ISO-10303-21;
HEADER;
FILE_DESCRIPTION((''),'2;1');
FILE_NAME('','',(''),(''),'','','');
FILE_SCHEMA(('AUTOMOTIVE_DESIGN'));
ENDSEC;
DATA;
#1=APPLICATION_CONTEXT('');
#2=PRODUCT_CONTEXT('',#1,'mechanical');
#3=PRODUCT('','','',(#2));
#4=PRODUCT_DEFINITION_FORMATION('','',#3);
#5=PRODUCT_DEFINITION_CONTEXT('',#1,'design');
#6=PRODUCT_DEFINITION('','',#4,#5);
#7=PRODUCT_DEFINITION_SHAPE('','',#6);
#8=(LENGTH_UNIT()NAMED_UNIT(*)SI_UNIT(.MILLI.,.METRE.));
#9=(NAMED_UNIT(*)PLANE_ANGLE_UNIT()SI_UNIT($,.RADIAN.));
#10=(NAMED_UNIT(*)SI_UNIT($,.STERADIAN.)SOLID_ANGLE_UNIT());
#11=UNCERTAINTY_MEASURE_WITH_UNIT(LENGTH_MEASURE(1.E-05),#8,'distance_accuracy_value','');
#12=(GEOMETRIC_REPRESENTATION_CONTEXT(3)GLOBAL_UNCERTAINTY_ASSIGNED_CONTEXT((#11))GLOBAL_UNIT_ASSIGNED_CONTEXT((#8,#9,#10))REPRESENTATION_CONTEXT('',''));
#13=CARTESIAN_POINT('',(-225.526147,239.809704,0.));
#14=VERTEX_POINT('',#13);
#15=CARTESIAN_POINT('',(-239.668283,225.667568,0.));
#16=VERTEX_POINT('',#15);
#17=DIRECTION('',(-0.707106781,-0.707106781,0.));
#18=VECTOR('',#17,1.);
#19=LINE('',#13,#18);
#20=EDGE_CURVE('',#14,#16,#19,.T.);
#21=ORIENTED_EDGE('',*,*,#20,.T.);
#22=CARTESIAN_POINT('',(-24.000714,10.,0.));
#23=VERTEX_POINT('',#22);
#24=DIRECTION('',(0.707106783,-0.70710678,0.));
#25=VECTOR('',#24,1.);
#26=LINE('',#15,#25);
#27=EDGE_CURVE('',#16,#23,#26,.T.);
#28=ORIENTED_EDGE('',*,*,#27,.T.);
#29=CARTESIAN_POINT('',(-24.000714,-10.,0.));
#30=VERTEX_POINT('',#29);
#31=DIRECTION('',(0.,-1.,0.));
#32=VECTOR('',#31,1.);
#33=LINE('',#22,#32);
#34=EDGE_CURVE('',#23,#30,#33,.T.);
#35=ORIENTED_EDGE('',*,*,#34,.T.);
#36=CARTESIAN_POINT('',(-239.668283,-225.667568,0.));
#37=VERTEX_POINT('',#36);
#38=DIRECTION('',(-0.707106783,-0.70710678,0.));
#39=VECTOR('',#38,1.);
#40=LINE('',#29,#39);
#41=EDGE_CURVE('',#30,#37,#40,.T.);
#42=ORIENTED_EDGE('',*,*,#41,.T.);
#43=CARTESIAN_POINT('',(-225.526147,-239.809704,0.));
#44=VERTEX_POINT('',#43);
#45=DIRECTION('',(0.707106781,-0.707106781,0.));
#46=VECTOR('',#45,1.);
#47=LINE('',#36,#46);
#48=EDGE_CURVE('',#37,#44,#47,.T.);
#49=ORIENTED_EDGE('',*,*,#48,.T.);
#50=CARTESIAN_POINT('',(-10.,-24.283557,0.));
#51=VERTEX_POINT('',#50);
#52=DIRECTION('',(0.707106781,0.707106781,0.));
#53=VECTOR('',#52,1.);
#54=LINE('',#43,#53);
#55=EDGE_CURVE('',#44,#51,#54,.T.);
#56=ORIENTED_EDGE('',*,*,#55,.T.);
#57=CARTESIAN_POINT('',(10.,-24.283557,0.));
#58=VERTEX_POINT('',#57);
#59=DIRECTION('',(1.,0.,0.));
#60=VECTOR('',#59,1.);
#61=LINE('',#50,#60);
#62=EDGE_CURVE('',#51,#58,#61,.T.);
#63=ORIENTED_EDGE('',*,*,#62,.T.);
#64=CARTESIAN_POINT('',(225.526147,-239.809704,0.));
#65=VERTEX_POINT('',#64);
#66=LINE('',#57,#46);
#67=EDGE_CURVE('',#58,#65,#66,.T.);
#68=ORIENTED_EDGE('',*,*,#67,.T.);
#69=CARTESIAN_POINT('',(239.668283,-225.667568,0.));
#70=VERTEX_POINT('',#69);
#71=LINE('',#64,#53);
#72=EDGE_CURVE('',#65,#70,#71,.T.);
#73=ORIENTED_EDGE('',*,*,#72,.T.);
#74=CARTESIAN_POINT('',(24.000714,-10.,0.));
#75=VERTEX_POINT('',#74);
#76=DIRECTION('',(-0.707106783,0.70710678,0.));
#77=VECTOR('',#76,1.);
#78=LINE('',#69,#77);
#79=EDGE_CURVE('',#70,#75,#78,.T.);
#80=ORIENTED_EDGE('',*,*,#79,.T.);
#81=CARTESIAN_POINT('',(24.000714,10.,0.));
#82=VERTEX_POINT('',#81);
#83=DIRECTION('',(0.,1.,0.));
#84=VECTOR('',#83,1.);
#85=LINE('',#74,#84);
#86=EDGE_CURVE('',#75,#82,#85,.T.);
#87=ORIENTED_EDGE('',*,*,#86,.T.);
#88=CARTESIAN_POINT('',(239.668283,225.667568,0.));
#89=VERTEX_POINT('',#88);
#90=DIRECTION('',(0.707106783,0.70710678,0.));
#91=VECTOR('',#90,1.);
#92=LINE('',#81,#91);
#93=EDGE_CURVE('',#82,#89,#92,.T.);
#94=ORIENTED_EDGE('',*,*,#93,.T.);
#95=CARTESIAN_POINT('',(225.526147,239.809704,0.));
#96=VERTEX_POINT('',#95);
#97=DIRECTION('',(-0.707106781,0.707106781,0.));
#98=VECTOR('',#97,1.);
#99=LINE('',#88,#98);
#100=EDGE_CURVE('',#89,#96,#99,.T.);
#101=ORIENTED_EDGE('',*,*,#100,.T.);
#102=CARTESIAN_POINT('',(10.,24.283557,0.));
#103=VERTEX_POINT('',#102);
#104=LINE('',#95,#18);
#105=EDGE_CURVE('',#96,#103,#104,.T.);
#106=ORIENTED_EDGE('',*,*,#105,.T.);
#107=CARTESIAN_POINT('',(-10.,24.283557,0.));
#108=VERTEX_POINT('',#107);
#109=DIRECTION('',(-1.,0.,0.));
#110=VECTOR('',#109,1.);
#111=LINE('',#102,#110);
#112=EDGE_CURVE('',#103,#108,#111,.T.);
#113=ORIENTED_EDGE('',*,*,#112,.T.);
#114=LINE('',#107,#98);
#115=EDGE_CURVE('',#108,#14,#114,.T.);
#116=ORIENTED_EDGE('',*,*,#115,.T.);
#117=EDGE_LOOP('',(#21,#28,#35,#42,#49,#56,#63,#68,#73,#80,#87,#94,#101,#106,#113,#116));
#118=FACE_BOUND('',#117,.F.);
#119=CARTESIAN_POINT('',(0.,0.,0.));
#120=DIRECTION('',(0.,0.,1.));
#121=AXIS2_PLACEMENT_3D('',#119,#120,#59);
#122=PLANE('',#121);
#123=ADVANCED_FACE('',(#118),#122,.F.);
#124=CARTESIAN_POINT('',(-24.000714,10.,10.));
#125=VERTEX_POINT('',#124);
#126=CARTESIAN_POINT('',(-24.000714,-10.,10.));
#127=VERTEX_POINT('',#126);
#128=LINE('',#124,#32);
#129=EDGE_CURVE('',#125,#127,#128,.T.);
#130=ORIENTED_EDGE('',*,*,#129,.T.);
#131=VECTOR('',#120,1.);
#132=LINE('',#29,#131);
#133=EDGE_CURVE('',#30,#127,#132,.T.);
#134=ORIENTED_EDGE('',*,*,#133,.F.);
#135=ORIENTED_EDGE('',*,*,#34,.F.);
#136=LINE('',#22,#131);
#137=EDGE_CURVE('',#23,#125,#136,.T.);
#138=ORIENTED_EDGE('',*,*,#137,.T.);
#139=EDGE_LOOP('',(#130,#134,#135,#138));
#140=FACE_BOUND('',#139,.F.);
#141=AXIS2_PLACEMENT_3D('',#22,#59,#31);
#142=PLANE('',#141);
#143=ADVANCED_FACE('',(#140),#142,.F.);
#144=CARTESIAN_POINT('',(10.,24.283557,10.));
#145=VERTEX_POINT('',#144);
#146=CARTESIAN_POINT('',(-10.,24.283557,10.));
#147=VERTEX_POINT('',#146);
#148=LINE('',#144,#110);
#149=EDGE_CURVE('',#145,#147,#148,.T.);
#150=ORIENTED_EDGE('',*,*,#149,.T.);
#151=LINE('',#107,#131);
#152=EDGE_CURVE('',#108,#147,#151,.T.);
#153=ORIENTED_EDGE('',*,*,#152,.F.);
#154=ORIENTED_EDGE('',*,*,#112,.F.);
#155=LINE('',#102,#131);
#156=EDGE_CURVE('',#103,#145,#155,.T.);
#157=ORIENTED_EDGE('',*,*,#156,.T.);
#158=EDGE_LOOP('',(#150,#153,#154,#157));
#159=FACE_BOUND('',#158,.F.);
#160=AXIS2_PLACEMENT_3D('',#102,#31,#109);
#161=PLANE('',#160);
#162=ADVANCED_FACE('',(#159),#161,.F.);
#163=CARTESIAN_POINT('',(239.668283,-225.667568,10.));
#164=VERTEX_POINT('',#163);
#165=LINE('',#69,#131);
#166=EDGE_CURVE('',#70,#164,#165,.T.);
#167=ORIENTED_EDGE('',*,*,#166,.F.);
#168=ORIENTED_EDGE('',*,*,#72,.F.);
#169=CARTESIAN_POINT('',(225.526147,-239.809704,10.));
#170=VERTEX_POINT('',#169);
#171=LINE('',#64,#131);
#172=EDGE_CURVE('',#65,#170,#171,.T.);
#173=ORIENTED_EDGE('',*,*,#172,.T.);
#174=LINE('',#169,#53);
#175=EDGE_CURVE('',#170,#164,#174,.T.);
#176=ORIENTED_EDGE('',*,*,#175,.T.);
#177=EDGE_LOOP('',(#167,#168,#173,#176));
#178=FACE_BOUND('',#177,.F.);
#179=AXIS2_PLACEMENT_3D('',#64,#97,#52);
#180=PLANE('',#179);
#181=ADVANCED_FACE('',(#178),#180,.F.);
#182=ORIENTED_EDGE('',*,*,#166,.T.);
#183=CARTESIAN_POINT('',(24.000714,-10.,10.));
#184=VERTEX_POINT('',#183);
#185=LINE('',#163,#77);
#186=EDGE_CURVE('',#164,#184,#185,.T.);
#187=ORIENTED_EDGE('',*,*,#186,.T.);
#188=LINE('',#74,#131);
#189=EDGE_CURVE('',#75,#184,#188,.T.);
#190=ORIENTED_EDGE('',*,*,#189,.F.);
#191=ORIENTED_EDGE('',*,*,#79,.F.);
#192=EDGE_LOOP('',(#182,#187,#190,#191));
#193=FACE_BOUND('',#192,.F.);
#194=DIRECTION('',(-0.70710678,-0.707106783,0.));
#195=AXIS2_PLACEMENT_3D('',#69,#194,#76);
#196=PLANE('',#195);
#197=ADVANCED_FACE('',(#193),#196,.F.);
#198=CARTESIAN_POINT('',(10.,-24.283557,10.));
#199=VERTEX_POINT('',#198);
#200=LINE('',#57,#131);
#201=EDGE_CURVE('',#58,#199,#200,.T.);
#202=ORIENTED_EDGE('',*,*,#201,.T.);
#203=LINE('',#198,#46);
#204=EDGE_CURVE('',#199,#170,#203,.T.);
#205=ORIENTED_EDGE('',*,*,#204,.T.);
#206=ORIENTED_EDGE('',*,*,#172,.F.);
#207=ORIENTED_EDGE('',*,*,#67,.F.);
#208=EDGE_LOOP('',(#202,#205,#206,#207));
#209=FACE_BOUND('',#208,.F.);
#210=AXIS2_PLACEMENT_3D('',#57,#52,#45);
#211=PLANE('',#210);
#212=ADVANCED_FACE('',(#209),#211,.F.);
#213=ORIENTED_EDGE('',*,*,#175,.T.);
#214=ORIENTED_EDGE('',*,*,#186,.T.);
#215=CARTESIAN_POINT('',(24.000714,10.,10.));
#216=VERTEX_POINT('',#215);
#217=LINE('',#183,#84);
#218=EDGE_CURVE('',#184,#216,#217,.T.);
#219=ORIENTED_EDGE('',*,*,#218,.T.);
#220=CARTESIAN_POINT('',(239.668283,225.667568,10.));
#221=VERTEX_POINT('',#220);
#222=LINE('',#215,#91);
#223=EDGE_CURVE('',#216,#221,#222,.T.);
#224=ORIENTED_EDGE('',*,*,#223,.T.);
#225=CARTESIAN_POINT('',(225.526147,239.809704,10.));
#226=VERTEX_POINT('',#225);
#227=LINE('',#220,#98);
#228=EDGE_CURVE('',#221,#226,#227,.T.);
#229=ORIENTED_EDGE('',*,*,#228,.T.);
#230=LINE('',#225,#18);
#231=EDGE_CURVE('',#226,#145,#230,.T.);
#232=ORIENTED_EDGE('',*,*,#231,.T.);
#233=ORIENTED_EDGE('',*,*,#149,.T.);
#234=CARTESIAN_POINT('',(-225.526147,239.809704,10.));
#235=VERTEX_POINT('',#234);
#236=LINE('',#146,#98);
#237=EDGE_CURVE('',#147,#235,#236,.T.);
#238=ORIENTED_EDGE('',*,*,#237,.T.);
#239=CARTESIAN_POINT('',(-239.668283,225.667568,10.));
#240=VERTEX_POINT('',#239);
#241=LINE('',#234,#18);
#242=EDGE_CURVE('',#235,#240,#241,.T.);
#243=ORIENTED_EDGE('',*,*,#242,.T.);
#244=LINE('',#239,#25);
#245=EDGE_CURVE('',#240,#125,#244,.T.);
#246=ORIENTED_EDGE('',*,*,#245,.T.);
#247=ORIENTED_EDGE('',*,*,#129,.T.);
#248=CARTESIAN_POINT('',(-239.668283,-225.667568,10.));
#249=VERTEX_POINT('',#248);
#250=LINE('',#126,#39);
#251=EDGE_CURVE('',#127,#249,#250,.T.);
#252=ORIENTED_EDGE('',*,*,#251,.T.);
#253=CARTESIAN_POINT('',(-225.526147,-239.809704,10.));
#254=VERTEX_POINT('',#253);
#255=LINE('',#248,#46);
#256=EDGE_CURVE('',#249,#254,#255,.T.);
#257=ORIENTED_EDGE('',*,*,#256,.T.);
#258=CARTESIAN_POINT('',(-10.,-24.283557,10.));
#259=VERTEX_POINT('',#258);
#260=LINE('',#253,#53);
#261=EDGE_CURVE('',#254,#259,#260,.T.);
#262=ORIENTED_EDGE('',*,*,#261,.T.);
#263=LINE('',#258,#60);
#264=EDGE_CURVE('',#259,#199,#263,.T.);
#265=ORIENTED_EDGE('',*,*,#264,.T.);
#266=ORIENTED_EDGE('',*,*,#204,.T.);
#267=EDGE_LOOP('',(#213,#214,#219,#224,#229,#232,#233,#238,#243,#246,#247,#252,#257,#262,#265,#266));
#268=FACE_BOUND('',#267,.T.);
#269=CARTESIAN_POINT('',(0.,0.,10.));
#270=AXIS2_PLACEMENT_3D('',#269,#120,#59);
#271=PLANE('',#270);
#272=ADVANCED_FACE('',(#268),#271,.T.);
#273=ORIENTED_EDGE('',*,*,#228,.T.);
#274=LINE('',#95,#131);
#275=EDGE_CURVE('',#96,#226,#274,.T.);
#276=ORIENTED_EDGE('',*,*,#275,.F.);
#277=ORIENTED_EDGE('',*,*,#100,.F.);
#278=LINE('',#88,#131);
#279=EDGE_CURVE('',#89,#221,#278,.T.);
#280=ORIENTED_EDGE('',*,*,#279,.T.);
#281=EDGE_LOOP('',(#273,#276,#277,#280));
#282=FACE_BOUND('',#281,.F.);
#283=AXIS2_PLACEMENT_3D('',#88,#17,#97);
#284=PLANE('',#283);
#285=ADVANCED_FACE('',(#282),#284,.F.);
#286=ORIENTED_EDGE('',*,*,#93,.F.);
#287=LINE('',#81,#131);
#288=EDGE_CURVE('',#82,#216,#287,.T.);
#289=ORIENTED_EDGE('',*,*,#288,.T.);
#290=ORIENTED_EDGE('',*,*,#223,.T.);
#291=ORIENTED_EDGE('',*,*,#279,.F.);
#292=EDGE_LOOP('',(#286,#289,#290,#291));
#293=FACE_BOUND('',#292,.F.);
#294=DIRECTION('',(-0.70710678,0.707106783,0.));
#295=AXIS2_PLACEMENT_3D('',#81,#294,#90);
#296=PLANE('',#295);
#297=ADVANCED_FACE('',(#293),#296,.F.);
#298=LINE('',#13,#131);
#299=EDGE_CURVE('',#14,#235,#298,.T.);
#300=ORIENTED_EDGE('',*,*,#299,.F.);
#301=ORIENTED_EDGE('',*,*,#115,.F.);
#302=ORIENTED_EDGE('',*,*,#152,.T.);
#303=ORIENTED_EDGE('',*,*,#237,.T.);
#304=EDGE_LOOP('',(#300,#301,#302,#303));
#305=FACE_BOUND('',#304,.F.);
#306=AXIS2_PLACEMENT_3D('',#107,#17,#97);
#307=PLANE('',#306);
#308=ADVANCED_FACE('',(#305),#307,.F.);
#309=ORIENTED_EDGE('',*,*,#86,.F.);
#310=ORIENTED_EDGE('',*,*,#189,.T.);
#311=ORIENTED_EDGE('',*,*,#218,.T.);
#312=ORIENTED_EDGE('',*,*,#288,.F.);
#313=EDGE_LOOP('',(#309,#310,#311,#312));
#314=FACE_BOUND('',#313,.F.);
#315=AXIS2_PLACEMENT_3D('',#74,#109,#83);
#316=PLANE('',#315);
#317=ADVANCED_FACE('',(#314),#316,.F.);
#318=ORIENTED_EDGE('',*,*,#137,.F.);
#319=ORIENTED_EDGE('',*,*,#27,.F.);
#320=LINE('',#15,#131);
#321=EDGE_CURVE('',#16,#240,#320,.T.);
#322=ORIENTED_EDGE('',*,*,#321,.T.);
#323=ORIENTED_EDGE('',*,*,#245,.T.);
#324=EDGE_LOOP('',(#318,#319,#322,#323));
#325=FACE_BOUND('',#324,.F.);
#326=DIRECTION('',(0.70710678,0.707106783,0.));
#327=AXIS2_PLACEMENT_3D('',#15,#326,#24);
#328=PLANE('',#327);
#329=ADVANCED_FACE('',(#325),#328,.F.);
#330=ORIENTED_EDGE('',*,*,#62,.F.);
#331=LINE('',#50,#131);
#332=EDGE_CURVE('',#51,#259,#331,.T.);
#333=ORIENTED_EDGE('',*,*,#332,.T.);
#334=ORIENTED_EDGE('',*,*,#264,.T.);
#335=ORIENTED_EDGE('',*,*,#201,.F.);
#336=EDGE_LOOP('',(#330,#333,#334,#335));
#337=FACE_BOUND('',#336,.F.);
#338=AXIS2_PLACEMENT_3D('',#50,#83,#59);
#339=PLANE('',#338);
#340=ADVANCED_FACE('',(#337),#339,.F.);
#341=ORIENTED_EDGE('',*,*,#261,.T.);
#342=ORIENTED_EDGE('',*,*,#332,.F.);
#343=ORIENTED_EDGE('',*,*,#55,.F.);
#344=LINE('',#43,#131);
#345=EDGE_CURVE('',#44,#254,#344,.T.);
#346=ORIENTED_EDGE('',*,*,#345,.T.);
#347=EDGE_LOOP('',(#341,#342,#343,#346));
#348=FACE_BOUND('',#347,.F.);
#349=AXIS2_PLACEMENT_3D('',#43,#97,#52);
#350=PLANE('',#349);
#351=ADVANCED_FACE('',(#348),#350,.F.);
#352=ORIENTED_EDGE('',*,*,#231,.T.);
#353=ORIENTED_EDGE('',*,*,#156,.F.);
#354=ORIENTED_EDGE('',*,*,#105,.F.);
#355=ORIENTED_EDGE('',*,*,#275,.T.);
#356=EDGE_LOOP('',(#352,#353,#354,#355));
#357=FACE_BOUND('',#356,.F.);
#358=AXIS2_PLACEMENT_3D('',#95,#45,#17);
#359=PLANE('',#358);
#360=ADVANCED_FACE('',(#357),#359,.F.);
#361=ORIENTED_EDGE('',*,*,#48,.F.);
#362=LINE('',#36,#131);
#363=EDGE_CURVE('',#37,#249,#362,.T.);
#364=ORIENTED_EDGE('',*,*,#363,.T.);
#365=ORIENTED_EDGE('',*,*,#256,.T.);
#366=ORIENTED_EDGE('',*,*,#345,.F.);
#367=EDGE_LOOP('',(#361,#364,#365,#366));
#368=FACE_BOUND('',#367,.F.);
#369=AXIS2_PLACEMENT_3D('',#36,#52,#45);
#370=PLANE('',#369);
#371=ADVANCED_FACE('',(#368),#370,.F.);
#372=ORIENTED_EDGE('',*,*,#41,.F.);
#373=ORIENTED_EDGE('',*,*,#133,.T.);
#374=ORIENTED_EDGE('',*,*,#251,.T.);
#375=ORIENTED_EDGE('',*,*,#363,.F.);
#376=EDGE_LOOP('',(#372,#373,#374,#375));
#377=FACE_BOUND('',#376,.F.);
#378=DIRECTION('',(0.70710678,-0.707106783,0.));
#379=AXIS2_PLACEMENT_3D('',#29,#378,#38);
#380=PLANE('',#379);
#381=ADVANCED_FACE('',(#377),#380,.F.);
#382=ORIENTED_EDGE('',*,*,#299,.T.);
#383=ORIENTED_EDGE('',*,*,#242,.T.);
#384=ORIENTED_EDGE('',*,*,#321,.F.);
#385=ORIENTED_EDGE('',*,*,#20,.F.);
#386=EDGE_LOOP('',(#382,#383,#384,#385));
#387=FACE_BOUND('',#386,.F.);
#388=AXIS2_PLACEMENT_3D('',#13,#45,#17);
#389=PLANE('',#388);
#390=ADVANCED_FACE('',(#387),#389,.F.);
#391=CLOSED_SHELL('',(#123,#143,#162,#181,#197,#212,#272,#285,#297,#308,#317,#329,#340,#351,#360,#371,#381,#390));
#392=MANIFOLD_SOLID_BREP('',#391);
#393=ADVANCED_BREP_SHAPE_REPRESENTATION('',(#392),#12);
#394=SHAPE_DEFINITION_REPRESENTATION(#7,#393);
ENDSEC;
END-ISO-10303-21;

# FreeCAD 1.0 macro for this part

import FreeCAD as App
import Part
import Sketcher

doc = App.newDocument("Part")
params = doc.addObject("Spreadsheet::Sheet", "Params")
for row, (alias, value) in enumerate([
    ("sketch1_width", "20 mm"),
    ("sketch1_length", "20.000001 mm"),
    ("sketch1_length2", "305 mm"),
    ("sketch1_length3", "304.8 mm"),
    ("pad1_length", "10 mm"),
], start=1):
    params.set(f"A{row}", alias)
    params.set(f"B{row}", "=" + value)
    params.setAlias(f"B{row}", alias)

body = doc.addObject("PartDesign::Body", "Body")

# Sketch on XY plane
sketch1 = body.newObject("Sketcher::SketchObject", "Sketch")
sketch1.AttachmentSupport = (doc.getObject("XY_Plane"), [""])
sketch1.MapMode = "FlatFace"
sketch1.addGeometry([
    Part.LineSegment(App.Vector(10, 24, 0), App.Vector(-10, 24, 0)),  # 0
    Part.LineSegment(App.Vector(-10, 24, 0), App.Vector(-226, 240, 0)),  # 1
    Part.LineSegment(App.Vector(-226, 240, 0), App.Vector(-240, 226, 0)),  # 2
    Part.LineSegment(App.Vector(-240, 226, 0), App.Vector(-24, 10, 0)),  # 3
    Part.LineSegment(App.Vector(-24, 10, 0), App.Vector(-24, -10, 0)),  # 4
    Part.LineSegment(App.Vector(-24, -10, 0), App.Vector(-240, -226, 0)),  # 5
    Part.LineSegment(App.Vector(-240, -226, 0), App.Vector(-226, -240, 0)),  # 6
    Part.LineSegment(App.Vector(-226, -240, 0), App.Vector(-10, -24, 0)),  # 7
    Part.LineSegment(App.Vector(-10, -24, 0), App.Vector(10, -24, 0)),  # 8
    Part.LineSegment(App.Vector(10, -24, 0), App.Vector(226, -240, 0)),  # 9
    Part.LineSegment(App.Vector(226, -240, 0), App.Vector(240, -226, 0)),  # 10
    Part.LineSegment(App.Vector(240, -226, 0), App.Vector(24, -10, 0)),  # 11
    Part.LineSegment(App.Vector(24, -10, 0), App.Vector(24, 10, 0)),  # 12
    Part.LineSegment(App.Vector(24, 10, 0), App.Vector(240, 226, 0)),  # 13
    Part.LineSegment(App.Vector(240, 226, 0), App.Vector(226, 240, 0)),  # 14
    Part.LineSegment(App.Vector(226, 240, 0), App.Vector(10, 24, 0)),  # 15
], False)
sketch1.addConstraint([
    Sketcher.Constraint("Coincident", 0, 2, 1, 1),
    Sketcher.Constraint("Coincident", 1, 2, 2, 1),
    Sketcher.Constraint("Coincident", 2, 2, 3, 1),
    Sketcher.Constraint("Coincident", 3, 2, 4, 1),
    Sketcher.Constraint("Coincident", 4, 2, 5, 1),
    Sketcher.Constraint("Coincident", 5, 2, 6, 1),
    Sketcher.Constraint("Coincident", 6, 2, 7, 1),
    Sketcher.Constraint("Coincident", 7, 2, 8, 1),
    Sketcher.Constraint("Coincident", 8, 2, 9, 1),
    Sketcher.Constraint("Coincident", 9, 2, 10, 1),
    Sketcher.Constraint("Coincident", 10, 2, 11, 1),
    Sketcher.Constraint("Coincident", 11, 2, 12, 1),
    Sketcher.Constraint("Coincident", 12, 2, 13, 1),
    Sketcher.Constraint("Coincident", 13, 2, 14, 1),
    Sketcher.Constraint("Coincident", 14, 2, 15, 1),
    Sketcher.Constraint("Coincident", 15, 2, 0, 1),
    Sketcher.Constraint("Horizontal", 0),
    Sketcher.Constraint("Vertical", 4),
    Sketcher.Constraint("Horizontal", 8),
    Sketcher.Constraint("Vertical", 12),
    Sketcher.Constraint("Symmetric", 0, 2, 8, 2, -1, 1),
    Sketcher.Constraint("Symmetric", 1, 2, 9, 2, -1, 1),
    Sketcher.Constraint("Symmetric", 2, 2, 10, 2, -1, 1),
    Sketcher.Constraint("Symmetric", 3, 2, 11, 2, -1, 1),
    Sketcher.Constraint("Symmetric", 5, 2, 13, 2, -1, 1),
    Sketcher.Constraint("Symmetric", 6, 2, 14, 2, -1, 1),
    Sketcher.Constraint("Symmetric", 6, 2, 9, 2, -2),
    Sketcher.Constraint("Symmetric", 5, 2, 10, 2, -2),
    Sketcher.Constraint("Perpendicular", 1, 2),
    Sketcher.Constraint("Perpendicular", 2, 3),
    Sketcher.Constraint("Perpendicular", 3, 5),
    Sketcher.Constraint("Perpendicular", 5, 6),
    Sketcher.Constraint("Perpendicular", 6, 7),
    Sketcher.Constraint("Perpendicular", 11, 13),
    Sketcher.Constraint("Perpendicular", 14, 15),
    Sketcher.Constraint("Equal", 8, 4),
    Sketcher.Constraint("DistanceX", 0, 2, 0, 1, 20.0),
    Sketcher.Constraint("Distance", 2, 20.000001),
    Sketcher.Constraint("Distance", 3, 305.0),
    Sketcher.Constraint("Distance", 1, 304.8),
])
sketch1.setExpression("Constraints[36]", "Params.sketch1_width")
sketch1.setExpression("Constraints[37]", "Params.sketch1_length")
sketch1.setExpression("Constraints[38]", "Params.sketch1_length2")
sketch1.setExpression("Constraints[39]", "Params.sketch1_length3")
pad1 = body.newObject("PartDesign::Pad", "Pad")
pad1.Profile = sketch1
pad1.setExpression("Length", "Params.pad1_length")

doc.recompute()
